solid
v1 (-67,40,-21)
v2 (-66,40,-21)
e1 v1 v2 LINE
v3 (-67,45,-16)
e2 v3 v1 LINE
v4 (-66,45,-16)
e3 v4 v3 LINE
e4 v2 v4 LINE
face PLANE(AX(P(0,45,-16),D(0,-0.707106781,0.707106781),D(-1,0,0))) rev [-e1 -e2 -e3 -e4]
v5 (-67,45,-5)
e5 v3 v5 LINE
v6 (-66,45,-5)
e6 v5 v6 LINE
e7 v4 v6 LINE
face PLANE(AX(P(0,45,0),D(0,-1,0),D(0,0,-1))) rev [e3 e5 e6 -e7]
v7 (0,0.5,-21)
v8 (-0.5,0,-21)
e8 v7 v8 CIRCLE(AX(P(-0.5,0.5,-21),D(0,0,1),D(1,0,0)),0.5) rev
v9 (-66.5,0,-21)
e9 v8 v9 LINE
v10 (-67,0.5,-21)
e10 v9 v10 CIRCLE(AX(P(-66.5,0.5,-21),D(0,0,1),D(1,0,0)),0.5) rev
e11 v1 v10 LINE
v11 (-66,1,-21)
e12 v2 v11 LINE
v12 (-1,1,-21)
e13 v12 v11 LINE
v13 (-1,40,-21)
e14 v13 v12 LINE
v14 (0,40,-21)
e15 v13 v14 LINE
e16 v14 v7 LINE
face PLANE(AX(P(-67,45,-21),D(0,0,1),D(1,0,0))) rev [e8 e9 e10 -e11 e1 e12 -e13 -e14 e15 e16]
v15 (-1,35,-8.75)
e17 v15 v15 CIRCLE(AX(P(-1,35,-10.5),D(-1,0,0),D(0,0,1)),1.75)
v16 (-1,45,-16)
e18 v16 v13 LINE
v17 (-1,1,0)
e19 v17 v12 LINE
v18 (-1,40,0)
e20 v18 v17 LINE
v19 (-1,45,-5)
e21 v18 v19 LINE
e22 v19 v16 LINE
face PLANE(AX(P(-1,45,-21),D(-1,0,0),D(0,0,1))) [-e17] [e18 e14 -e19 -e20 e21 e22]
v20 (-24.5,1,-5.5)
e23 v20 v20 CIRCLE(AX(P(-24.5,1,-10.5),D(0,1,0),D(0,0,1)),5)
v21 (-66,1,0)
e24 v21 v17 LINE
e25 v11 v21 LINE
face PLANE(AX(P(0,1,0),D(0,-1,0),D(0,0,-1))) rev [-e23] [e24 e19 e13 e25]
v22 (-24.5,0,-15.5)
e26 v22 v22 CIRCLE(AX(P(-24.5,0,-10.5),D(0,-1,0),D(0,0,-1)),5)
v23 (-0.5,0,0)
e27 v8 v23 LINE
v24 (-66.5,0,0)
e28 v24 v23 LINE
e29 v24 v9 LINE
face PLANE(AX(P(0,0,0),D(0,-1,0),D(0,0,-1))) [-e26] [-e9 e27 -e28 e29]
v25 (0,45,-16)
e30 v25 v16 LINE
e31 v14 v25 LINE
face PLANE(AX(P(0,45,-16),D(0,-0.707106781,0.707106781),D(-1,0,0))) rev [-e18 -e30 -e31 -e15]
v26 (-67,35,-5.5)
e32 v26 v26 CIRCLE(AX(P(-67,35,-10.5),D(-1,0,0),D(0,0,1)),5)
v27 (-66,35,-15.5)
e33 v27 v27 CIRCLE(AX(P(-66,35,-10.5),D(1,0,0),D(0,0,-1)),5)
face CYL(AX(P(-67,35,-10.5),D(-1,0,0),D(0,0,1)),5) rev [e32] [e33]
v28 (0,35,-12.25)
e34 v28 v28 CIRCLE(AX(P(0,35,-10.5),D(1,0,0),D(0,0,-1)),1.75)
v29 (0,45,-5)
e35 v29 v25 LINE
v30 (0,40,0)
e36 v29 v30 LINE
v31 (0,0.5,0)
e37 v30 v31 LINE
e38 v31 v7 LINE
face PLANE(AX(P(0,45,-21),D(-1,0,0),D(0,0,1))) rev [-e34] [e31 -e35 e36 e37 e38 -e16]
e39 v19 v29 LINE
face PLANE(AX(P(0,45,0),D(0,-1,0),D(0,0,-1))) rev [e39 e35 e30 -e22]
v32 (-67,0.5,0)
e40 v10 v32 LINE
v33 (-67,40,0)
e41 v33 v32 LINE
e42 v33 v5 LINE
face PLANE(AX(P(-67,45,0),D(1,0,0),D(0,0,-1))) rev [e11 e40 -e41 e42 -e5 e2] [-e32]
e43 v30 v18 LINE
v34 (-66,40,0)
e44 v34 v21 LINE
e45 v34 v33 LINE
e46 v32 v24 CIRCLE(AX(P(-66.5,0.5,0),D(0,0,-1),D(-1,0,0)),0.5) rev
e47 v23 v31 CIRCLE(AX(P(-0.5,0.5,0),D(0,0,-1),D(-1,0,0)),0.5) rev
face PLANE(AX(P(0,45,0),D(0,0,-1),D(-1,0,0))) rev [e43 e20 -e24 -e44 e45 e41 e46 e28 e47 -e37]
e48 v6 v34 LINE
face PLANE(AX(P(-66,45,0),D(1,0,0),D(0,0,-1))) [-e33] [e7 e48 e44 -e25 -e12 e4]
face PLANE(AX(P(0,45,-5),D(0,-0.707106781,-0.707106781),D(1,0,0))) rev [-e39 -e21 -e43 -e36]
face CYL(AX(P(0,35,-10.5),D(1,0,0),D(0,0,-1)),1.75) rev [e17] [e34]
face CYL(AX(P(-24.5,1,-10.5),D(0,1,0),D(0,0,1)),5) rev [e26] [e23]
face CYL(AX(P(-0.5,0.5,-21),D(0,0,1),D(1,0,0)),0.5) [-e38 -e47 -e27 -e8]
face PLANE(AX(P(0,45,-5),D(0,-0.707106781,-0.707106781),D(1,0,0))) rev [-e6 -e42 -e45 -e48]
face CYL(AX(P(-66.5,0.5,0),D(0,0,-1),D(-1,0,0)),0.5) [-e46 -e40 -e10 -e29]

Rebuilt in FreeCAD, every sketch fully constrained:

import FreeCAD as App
import Part
import Sketcher

V = App.Vector


def edges_at(feature, points):
    """Names of the edges that pass closest to the given points."""
    edges = feature.Shape.Edges
    near = lambda p: min(range(len(edges)), key=lambda i: edges[i].distToShape(Part.Vertex(*p))[0])
    return sorted({f"Edge{near(p) + 1}" for p in points})


def faces_at(feature, points):
    """Names of the faces that lie closest to the given points."""
    faces = feature.Shape.Faces
    near = lambda p: min(range(len(faces)), key=lambda i: faces[i].distToShape(Part.Vertex(*p))[0])
    return sorted({f"Face{near(p) + 1}" for p in points})

doc = App.newDocument("Part")
body = doc.addObject("PartDesign::Body", "Body")

# Sketch on XZ plane
sketch1 = doc.addObject("Sketcher::SketchObject", "Sketch")
body.addObject(sketch1)
sketch1.AttachmentSupport = (doc.XZ_Plane, [""])
sketch1.MapMode = "FlatFace"
sketch1.addGeometry([
    Part.LineSegment(V(-67, -21, 0), V(-67, 0, 0)),
    Part.LineSegment(V(-67, 0, 0), V(0, 0, 0)),
    Part.LineSegment(V(0, 0, 0), V(0, -21, 0)),
    Part.LineSegment(V(0, -21, 0), V(-67, -21, 0)),
], False)
sketch1.addConstraint([
    Sketcher.Constraint("Coincident", 0, 2, 1, 1),
    Sketcher.Constraint("Coincident", 1, 2, 2, 1),
    Sketcher.Constraint("Coincident", 2, 2, 3, 1),
    Sketcher.Constraint("Coincident", 3, 2, 0, 1),
    Sketcher.Constraint("Vertical", 0),
    Sketcher.Constraint("Horizontal", 1),
    Sketcher.Constraint("Vertical", 2),
    Sketcher.Constraint("Horizontal", 3),
    Sketcher.Constraint("Coincident", 1, 2, -1, 1),
    Sketcher.Constraint("DistanceX", 1, 1, 1, 2, 67.0),
    Sketcher.Constraint("DistanceY", 0, 1, 0, 2, 21.0),
])
pad1 = doc.addObject("PartDesign::Pad", "Pad")
body.addObject(pad1)
pad1.Profile = sketch1
pad1.Length = 45
pad1.Reversed = True
doc.recompute()

thickness = doc.addObject("PartDesign::Thickness", "Thickness")
body.addObject(thickness)
thickness.Base = (pad1, faces_at(pad1, [(-33.5, 45, -10.5), (-33.5, 22.5, 0), (-33.5, 22.5, -21)]))
thickness.Value = 1
thickness.Reversed = True
thickness.Join = "Intersection"
doc.recompute()

fillet = doc.addObject("PartDesign::Fillet", "Fillet")
body.addObject(fillet)
fillet.Base = (thickness, edges_at(thickness, [(-67, 0, -10.5), (0, 0, -10.5)]))
fillet.Radius = 0.5
doc.recompute()

chamfer = doc.addObject("PartDesign::Chamfer", "Chamfer")
body.addObject(chamfer)
chamfer.Base = (fillet, edges_at(fillet, [
    (-66.5, 45, 0),
    (-66.5, 45, -21),
    (-0.5, 45, 0),
    (-0.5, 45, -21),
]))
chamfer.Size = 5

# Sketch on YZ plane
sketch2 = doc.addObject("Sketcher::SketchObject", "Sketch001")
body.addObject(sketch2)
sketch2.AttachmentSupport = (doc.YZ_Plane, [""])
sketch2.MapMode = "FlatFace"
sketch2.AttachmentOffset = App.Placement(V(0, 0, -67), App.Rotation())
sketch2.addGeometry(Part.Circle(V(35, -10, 0), V(0, 0, 1), 5), False)
sketch2.addConstraint([
    Sketcher.Constraint("Diameter", 0, 10.0),
    Sketcher.Constraint("DistanceX", -1, 1, 0, 3, 35.0),
    Sketcher.Constraint("DistanceY", 0, 3, -1, 1, 10.5),
])
doc.recompute()
hole = doc.addObject("PartDesign::Hole", "Hole")
body.addObject(hole)
hole.Profile = sketch2
hole.ThreadType = "None"
hole.Diameter = 10
hole.DepthType = "Dimension"
hole.Depth = 1
hole.DrillPoint = "Flat"
hole.Reversed = True

# Sketch on XZ plane
sketch3 = doc.addObject("Sketcher::SketchObject", "Sketch002")
body.addObject(sketch3)
sketch3.AttachmentSupport = (doc.XZ_Plane, [""])
sketch3.MapMode = "FlatFace"
sketch3.AttachmentOffset = App.Placement(V(0, 0, -1), App.Rotation())
sketch3.addGeometry(Part.Circle(V(-24, -10, 0), V(0, 0, 1), 5), False)
sketch3.addConstraint([
    Sketcher.Constraint("Diameter", 0, 10.0),
    Sketcher.Constraint("DistanceX", 0, 3, -1, 1, 24.5),
    Sketcher.Constraint("DistanceY", 0, 3, -1, 1, 10.5),
])
doc.recompute()
hole2 = doc.addObject("PartDesign::Hole", "Hole001")
body.addObject(hole2)
hole2.Profile = sketch3
hole2.ThreadType = "None"
hole2.Diameter = 10
hole2.DepthType = "ThroughAll"
hole2.Reversed = True

# Sketch on YZ plane
sketch4 = doc.addObject("Sketcher::SketchObject", "Sketch003")
body.addObject(sketch4)
sketch4.AttachmentSupport = (doc.YZ_Plane, [""])
sketch4.MapMode = "FlatFace"
sketch4.addGeometry(Part.Circle(V(35, -10.5, 0), V(0, 0, 1), 1.8), False)
sketch4.addConstraint([
    Sketcher.Constraint("Diameter", 0, 3.5),
    Sketcher.Constraint("DistanceX", -1, 1, 0, 3, 35.0),
    Sketcher.Constraint("DistanceY", 0, 3, -1, 1, 10.5),
])
doc.recompute()
hole3 = doc.addObject("PartDesign::Hole", "Hole002")
body.addObject(hole3)
hole3.Profile = sketch4
hole3.ThreadType = "None"
hole3.Diameter = 3.5
hole3.DepthType = "ThroughAll"

doc.recompute()
